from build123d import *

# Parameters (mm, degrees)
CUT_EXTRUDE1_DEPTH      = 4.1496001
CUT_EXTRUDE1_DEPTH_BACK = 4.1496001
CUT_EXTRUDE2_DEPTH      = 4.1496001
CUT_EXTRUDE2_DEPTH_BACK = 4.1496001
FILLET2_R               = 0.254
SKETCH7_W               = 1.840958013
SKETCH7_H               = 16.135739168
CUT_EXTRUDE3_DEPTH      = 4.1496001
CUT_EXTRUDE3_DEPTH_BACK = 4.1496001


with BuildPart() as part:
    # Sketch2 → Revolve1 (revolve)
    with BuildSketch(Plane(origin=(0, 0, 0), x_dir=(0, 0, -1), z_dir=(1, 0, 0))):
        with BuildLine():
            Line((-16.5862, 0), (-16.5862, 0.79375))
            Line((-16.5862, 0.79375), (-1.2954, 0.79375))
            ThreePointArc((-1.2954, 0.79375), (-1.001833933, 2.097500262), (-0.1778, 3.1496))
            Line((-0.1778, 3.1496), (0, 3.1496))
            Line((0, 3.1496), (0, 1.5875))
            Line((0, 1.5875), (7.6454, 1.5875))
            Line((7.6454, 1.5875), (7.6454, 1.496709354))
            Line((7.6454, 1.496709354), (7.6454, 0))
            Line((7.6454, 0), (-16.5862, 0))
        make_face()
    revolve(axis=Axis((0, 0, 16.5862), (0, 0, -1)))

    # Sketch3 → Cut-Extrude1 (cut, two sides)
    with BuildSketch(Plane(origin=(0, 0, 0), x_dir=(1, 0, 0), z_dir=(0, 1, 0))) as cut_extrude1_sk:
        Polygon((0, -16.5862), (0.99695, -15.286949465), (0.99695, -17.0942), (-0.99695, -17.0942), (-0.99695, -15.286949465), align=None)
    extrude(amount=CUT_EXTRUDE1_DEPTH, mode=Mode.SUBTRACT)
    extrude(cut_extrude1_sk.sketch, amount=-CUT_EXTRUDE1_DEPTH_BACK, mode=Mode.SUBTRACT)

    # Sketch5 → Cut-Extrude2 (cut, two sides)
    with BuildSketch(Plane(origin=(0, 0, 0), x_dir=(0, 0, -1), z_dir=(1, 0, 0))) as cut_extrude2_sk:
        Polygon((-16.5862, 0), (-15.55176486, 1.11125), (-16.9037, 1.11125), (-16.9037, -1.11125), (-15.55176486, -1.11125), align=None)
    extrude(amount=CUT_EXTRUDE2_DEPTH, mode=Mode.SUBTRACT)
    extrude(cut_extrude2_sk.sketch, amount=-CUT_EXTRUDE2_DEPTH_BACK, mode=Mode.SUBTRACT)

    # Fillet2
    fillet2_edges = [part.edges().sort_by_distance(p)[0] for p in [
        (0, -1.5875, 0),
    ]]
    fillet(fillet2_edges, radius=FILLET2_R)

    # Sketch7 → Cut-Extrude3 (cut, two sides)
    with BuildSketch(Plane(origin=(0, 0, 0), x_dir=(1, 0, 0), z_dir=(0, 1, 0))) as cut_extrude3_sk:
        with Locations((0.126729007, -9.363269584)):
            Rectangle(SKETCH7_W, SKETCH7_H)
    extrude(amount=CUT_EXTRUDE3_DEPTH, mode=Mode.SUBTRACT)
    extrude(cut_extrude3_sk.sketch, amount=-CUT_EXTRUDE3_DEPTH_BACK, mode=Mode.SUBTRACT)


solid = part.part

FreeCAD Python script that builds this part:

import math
import FreeCAD as App
import Part
import Sketcher
Q = App.Units.Quantity


def edges_at(feature, points):
    """Names of the edges that pass closest to the given points."""
    edges = feature.Shape.Edges
    near = lambda p: min(range(len(edges)), key=lambda i: edges[i].distToShape(Part.Vertex(*p))[0])
    return sorted({f"Edge{near(p) + 1}" for p in points})

doc = App.newDocument("Part")
body = doc.addObject("PartDesign::Body", "Body")

sketch1 = body.newObject("Sketcher::SketchObject", "Sketch")
sketch1.AttachmentSupport = (doc.getObject("YZ_Plane"), [""])
sketch1.MapMode = "FlatFace"
sketch1.addGeometry([
    Part.LineSegment(App.Vector(0.79, 16.59, 0), App.Vector(0, 16.59, 0)),
    Part.LineSegment(App.Vector(0, 16.59, 0), App.Vector(0, -7.65, 0)),
    Part.LineSegment(App.Vector(0, -7.65, 0), App.Vector(1.59, -7.65, 0)),
    Part.LineSegment(App.Vector(1.59, -7.65, 0), App.Vector(1.59, 0, 0)),
    Part.LineSegment(App.Vector(1.59, 0, 0), App.Vector(3.15, 0, 0)),
    Part.LineSegment(App.Vector(3.15, 0, 0), App.Vector(3.15, 0.18, 0)),
    Part.ArcOfCircle(Part.Circle(App.Vector(0.79, -1.75, 0), App.Vector(0, 0, 1), 3.04), math.radians(39), math.radians(90)),
    Part.LineSegment(App.Vector(0.79, 1.3, 0), App.Vector(0.79, 16.59, 0)),
], False)
sketch1.addConstraint([
    Sketcher.Constraint("Coincident", 0, 2, 1, 1),
    Sketcher.Constraint("Coincident", 1, 2, 2, 1),
    Sketcher.Constraint("Coincident", 2, 2, 3, 1),
    Sketcher.Constraint("Coincident", 3, 2, 4, 1),
    Sketcher.Constraint("Coincident", 4, 2, 5, 1),
    Sketcher.Constraint("Coincident", 5, 2, 6, 1),
    Sketcher.Constraint("Coincident", 6, 2, 7, 1),
    Sketcher.Constraint("Coincident", 7, 2, 0, 1),
    Sketcher.Constraint("Horizontal", 0),
    Sketcher.Constraint("Vertical", 1),
    Sketcher.Constraint("Horizontal", 2),
    Sketcher.Constraint("Vertical", 3),
    Sketcher.Constraint("Horizontal", 4),
    Sketcher.Constraint("Vertical", 5),
    Sketcher.Constraint("Vertical", 7),
    Sketcher.Constraint("PointOnObject", 0, 2, -2),
    Sketcher.Constraint("PointOnObject", 3, 2, -1),
    Sketcher.Constraint("DistanceX", 0, 2, 0, 1, Q("0.03125 in")),
    Sketcher.Constraint("DistanceX", 2, 1, 2, 2, Q("0.0625 in")),
    Sketcher.Constraint("DistanceY", 1, 2, 1, 1, Q("0.954 in")),
    Sketcher.Constraint("DistanceY", 3, 1, 3, 2, Q("0.301 in")),
    Sketcher.Constraint("DistanceY", 5, 1, 5, 2, Q("0.007 in")),
    Sketcher.Constraint("DistanceY", 7, 1, 7, 2, Q("0.602 in")),
    Sketcher.Constraint("DistanceX", 4, 1, 4, 2, Q("0.0615 in")),
    Sketcher.Constraint("DistanceX", -1, 1, 6, 3, Q("0.03125 in")),
])
revolution = body.newObject("PartDesign::Revolution", "Revolution")
revolution.Profile = sketch1
revolution.ReferenceAxis = (sketch1, ["V_Axis"])
revolution.Angle = 360

sketch2 = body.newObject("Sketcher::SketchObject", "Sketch001")
sketch2.AttachmentSupport = (doc.getObject("XZ_Plane"), [""])
sketch2.MapMode = "FlatFace"
sketch2.addGeometry([
    Part.LineSegment(App.Vector(1, 15.3, 0), App.Vector(0, 16.6, 0)),
    Part.LineSegment(App.Vector(0, 16.6, 0), App.Vector(-1, 15.3, 0)),
    Part.LineSegment(App.Vector(-1, 15.3, 0), App.Vector(-1, 17.1, 0)),
    Part.LineSegment(App.Vector(-1, 17.1, 0), App.Vector(1, 17.1, 0)),
    Part.LineSegment(App.Vector(1, 17.1, 0), App.Vector(1, 15.3, 0)),
], False)
sketch2.addConstraint([
    Sketcher.Constraint("Coincident", 0, 2, 1, 1),
    Sketcher.Constraint("Coincident", 1, 2, 2, 1),
    Sketcher.Constraint("Coincident", 2, 2, 3, 1),
    Sketcher.Constraint("Coincident", 3, 2, 4, 1),
    Sketcher.Constraint("Coincident", 4, 2, 0, 1),
    Sketcher.Constraint("Vertical", 2),
    Sketcher.Constraint("Horizontal", 3),
    Sketcher.Constraint("Vertical", 4),
    Sketcher.Constraint("Symmetric", 1, 2, 4, 2, -2),
    Sketcher.Constraint("PointOnObject", 0, 2, -2),
    Sketcher.Constraint("Angle", 0, Q("127.5 deg")),
    Sketcher.Constraint("DistanceY", 0, 2, 2, 2, Q("0.02 in")),
    Sketcher.Constraint("DistanceX", 3, 1, 3, 2, Q("0.0785 in")),
    Sketcher.Constraint("DistanceY", -1, 1, 0, 2, Q("0.653 in")),
])
pocket1 = body.newObject("PartDesign::Pocket", "Pocket")
pocket1.Profile = sketch2
pocket1.Type = "ThroughAll"
pocket1.Midplane = True

sketch3 = body.newObject("Sketcher::SketchObject", "Sketch002")
sketch3.AttachmentSupport = (doc.getObject("YZ_Plane"), [""])
sketch3.MapMode = "FlatFace"
sketch3.addGeometry([
    Part.LineSegment(App.Vector(0, 16.6, 0), App.Vector(1.1, 15.6, 0)),
    Part.LineSegment(App.Vector(1.1, 15.6, 0), App.Vector(1.1, 16.9, 0)),
    Part.LineSegment(App.Vector(1.1, 16.9, 0), App.Vector(-1.1, 16.9, 0)),
    Part.LineSegment(App.Vector(-1.1, 16.9, 0), App.Vector(-1.1, 15.6, 0)),
    Part.LineSegment(App.Vector(-1.1, 15.6, 0), App.Vector(0, 16.6, 0)),
], False)
sketch3.addConstraint([
    Sketcher.Constraint("Coincident", 0, 2, 1, 1),
    Sketcher.Constraint("Coincident", 1, 2, 2, 1),
    Sketcher.Constraint("Coincident", 2, 2, 3, 1),
    Sketcher.Constraint("Coincident", 3, 2, 4, 1),
    Sketcher.Constraint("Coincident", 4, 2, 0, 1),
    Sketcher.Constraint("Vertical", 1),
    Sketcher.Constraint("Horizontal", 2),
    Sketcher.Constraint("Vertical", 3),
    Sketcher.Constraint("Symmetric", 0, 2, 3, 2, -2),
    Sketcher.Constraint("PointOnObject", 4, 2, -2),
    Sketcher.Constraint("DistanceX", 2, 2, 2, 1, Q("0.0875 in")),
    Sketcher.Constraint("DistanceY", -1, 1, 4, 2, Q("0.653 in")),
    Sketcher.Constraint("DistanceY", -1, 1, 1, 2, Q("0.6655 in")),
    Sketcher.Constraint("Distance", 0, Q("1.5182 mm")),
])
pocket2 = body.newObject("PartDesign::Pocket", "Pocket001")
pocket2.Profile = sketch3
pocket2.Type = "ThroughAll"
pocket2.Midplane = True
doc.recompute()

fillet = body.newObject("PartDesign::Fillet", "Fillet")
fillet.Base = (pocket2, edges_at(pocket2, [(0, -1.587, 0)]))
fillet.Radius = Q("0.01 in")

sketch4 = body.newObject("Sketcher::SketchObject", "Sketch003")
sketch4.AttachmentSupport = (doc.getObject("XZ_Plane"), [""])
sketch4.MapMode = "FlatFace"
sketch4.addGeometry([
    Part.LineSegment(App.Vector(-0.8, 1.3, 0), App.Vector(-0.8, 17.4, 0)),
    Part.LineSegment(App.Vector(-0.8, 17.4, 0), App.Vector(1, 17.4, 0)),
    Part.LineSegment(App.Vector(1, 17.4, 0), App.Vector(1, 1.3, 0)),
    Part.LineSegment(App.Vector(1, 1.3, 0), App.Vector(-0.8, 1.3, 0)),
], False)
sketch4.addConstraint([
    Sketcher.Constraint("Coincident", 0, 2, 1, 1),
    Sketcher.Constraint("Coincident", 1, 2, 2, 1),
    Sketcher.Constraint("Coincident", 2, 2, 3, 1),
    Sketcher.Constraint("Coincident", 3, 2, 0, 1),
    Sketcher.Constraint("Vertical", 0),
    Sketcher.Constraint("Horizontal", 1),
    Sketcher.Constraint("Vertical", 2),
    Sketcher.Constraint("Horizontal", 3),
    Sketcher.Constraint("DistanceX", 0, 2, -1, 1, Q("0.03125 in")),
    Sketcher.Constraint("DistanceY", -1, 1, 2, 2, Q("0.051 in")),
    Sketcher.Constraint("DistanceX", 1, 1, 1, 2, Q("1.840958 mm")),
    Sketcher.Constraint("DistanceY", 0, 1, 0, 2, Q("16.135739 mm")),
])
pocket3 = body.newObject("PartDesign::Pocket", "Pocket002")
pocket3.Profile = sketch4
pocket3.Type = "ThroughAll"
pocket3.Midplane = True

doc.recompute()
